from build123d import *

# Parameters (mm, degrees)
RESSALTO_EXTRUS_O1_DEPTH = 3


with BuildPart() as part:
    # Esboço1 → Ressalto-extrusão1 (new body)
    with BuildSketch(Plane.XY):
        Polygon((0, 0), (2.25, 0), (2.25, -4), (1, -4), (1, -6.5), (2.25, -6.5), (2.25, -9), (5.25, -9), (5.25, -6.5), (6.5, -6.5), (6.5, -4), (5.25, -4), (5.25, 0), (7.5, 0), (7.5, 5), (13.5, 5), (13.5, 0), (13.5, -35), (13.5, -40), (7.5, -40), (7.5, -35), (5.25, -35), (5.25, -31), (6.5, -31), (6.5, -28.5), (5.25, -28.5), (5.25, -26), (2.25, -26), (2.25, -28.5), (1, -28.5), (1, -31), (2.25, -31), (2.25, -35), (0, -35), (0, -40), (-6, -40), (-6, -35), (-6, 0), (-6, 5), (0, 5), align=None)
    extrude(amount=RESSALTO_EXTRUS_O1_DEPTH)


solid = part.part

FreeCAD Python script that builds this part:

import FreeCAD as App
import Part
import Sketcher
from FreeCAD import Vector
Q = App.Units.Quantity


def add_polygon(sketch, points):
    """Adds a closed chain of lines whose ends are joined by coincident constraints."""
    first, n = sketch.GeometryCount, len(points)
    for a, b in zip(points, points[1:] + points[:1]):
        sketch.addGeometry(Part.LineSegment(App.Vector(*a, 0), App.Vector(*b, 0)), False)
    for i in range(n):
        sketch.addConstraint(Sketcher.Constraint("Coincident", first + i, 2, first + (i + 1) % n, 1))

doc = App.newDocument("Part")
body = doc.addObject("PartDesign::Body", "Body")

# Sketch on XY plane
sketch1 = body.newObject("Sketcher::SketchObject", "Sketch")
sketch1.AttachmentSupport = (doc.getObject("XY_Plane"), [""])
sketch1.MapMode = "FlatFace"
add_polygon(sketch1, [(2.2, 0), (0, 0), (0, 5), (-6, 5), (-6, -40), (0, -40), (0, -35), (2.2, -35), (2.2, -31), (1, -31), (1, -28.5), (2.2, -28.5), (2.2, -26), (5.2, -26), (5.2, -28.5), (6.5, -28.5), (6.5, -31), (5.2, -31), (5.2, -35), (7.5, -35), (7.5, -40), (13.5, -40), (13.5, 5), (7.5, 5), (7.5, 0), (5.2, 0), (5.2, -4), (6.5, -4), (6.5, -6.5), (5.2, -6.5), (5.2, -9), (2.2, -9), (2.2, -6.5), (1, -6.5), (1, -4), (2.2, -4)])  # lines 0-35
sketch1.addConstraint([
    Sketcher.Constraint("Horizontal", 0),
    Sketcher.Constraint("Vertical", 1),
    Sketcher.Constraint("Horizontal", 2),
    Sketcher.Constraint("Vertical", 3),
    Sketcher.Constraint("Horizontal", 4),
    Sketcher.Constraint("Vertical", 5),
    Sketcher.Constraint("Horizontal", 6),
    Sketcher.Constraint("Vertical", 7),
    Sketcher.Constraint("Horizontal", 8),
    Sketcher.Constraint("Vertical", 9),
    Sketcher.Constraint("Horizontal", 10),
    Sketcher.Constraint("Vertical", 11),
    Sketcher.Constraint("Horizontal", 12),
    Sketcher.Constraint("Vertical", 13),
    Sketcher.Constraint("Horizontal", 14),
    Sketcher.Constraint("Vertical", 15),
    Sketcher.Constraint("Horizontal", 16),
    Sketcher.Constraint("Vertical", 17),
    Sketcher.Constraint("Horizontal", 18),
    Sketcher.Constraint("Vertical", 19),
    Sketcher.Constraint("Horizontal", 20),
    Sketcher.Constraint("Vertical", 21),
    Sketcher.Constraint("Horizontal", 22),
    Sketcher.Constraint("Vertical", 23),
    Sketcher.Constraint("Horizontal", 24),
    Sketcher.Constraint("Vertical", 25),
    Sketcher.Constraint("Horizontal", 26),
    Sketcher.Constraint("Vertical", 27),
    Sketcher.Constraint("Horizontal", 28),
    Sketcher.Constraint("Vertical", 29),
    Sketcher.Constraint("Horizontal", 30),
    Sketcher.Constraint("Vertical", 31),
    Sketcher.Constraint("Horizontal", 32),
    Sketcher.Constraint("Vertical", 33),
    Sketcher.Constraint("Horizontal", 34),
    Sketcher.Constraint("Vertical", 35),
    Sketcher.Constraint("Coincident", 0, 2, -1, 1),
    Sketcher.Constraint("PointOnObject", 4, 2, -2),
    Sketcher.Constraint("PointOnObject", 23, 2, -1),
    Sketcher.Constraint("Horizontal", 10, 2, 13, 2),
    Sketcher.Constraint("Horizontal", 8, 2, 15, 2),
    Sketcher.Constraint("Horizontal", 6, 2, 17, 2),
    Sketcher.Constraint("Horizontal", 4, 2, 19, 2),
    Sketcher.Constraint("Horizontal", 2, 2, 21, 2),
    Sketcher.Constraint("Horizontal", 28, 2, 31, 2),
    Sketcher.Constraint("Horizontal", 26, 2, 33, 2),
    Sketcher.Constraint("Vertical", 7, 2, 10, 2),
    Sketcher.Constraint("Vertical", 13, 2, 16, 2),
    Sketcher.Constraint("Vertical", 19, 2, 22, 2),
    Sketcher.Constraint("Vertical", 17, 2, 24, 2),
    Sketcher.Constraint("Vertical", 15, 2, 26, 2),
    Sketcher.Constraint("Vertical", 25, 2, 28, 2),
    Sketcher.Constraint("Vertical", 11, 2, 30, 2),
    Sketcher.Constraint("Vertical", 9, 2, 32, 2),
    Sketcher.Constraint("Vertical", 31, 2, 34, 2),
    Sketcher.Constraint("Equal", 10, 14),
    Sketcher.Constraint("Equal", 6, 18),
    Sketcher.Constraint("Equal", 4, 20),
    Sketcher.Constraint("Equal", 1, 5),
    Sketcher.Constraint("Equal", 9, 11),
    Sketcher.Constraint("Equal", 17, 25),
    Sketcher.Constraint("Equal", 15, 27),
    Sketcher.Constraint("Equal", 27, 29),
    Sketcher.Constraint("DistanceX", 2, 2, 2, 1, Q("6 mm")),
    Sketcher.Constraint("DistanceX", 12, 1, 12, 2, Q("3 mm")),
    Sketcher.Constraint("DistanceY", 1, 1, 1, 2, Q("5 mm")),
    Sketcher.Constraint("DistanceY", 3, 2, 3, 1, Q("45 mm")),
    Sketcher.Constraint("DistanceY", 7, 1, 7, 2, Q("4 mm")),
    Sketcher.Constraint("DistanceY", 9, 1, 9, 2, Q("2.5 mm")),
    Sketcher.Constraint("DistanceX", -1, 1, 8, 2, Q("1 mm")),
    Sketcher.Constraint("DistanceX", 0, 2, 0, 1, Q("2.25 mm")),
])
pad1 = body.newObject("PartDesign::Pad", "Pad")
pad1.Profile = sketch1
pad1.Length = 3

doc.recompute()
